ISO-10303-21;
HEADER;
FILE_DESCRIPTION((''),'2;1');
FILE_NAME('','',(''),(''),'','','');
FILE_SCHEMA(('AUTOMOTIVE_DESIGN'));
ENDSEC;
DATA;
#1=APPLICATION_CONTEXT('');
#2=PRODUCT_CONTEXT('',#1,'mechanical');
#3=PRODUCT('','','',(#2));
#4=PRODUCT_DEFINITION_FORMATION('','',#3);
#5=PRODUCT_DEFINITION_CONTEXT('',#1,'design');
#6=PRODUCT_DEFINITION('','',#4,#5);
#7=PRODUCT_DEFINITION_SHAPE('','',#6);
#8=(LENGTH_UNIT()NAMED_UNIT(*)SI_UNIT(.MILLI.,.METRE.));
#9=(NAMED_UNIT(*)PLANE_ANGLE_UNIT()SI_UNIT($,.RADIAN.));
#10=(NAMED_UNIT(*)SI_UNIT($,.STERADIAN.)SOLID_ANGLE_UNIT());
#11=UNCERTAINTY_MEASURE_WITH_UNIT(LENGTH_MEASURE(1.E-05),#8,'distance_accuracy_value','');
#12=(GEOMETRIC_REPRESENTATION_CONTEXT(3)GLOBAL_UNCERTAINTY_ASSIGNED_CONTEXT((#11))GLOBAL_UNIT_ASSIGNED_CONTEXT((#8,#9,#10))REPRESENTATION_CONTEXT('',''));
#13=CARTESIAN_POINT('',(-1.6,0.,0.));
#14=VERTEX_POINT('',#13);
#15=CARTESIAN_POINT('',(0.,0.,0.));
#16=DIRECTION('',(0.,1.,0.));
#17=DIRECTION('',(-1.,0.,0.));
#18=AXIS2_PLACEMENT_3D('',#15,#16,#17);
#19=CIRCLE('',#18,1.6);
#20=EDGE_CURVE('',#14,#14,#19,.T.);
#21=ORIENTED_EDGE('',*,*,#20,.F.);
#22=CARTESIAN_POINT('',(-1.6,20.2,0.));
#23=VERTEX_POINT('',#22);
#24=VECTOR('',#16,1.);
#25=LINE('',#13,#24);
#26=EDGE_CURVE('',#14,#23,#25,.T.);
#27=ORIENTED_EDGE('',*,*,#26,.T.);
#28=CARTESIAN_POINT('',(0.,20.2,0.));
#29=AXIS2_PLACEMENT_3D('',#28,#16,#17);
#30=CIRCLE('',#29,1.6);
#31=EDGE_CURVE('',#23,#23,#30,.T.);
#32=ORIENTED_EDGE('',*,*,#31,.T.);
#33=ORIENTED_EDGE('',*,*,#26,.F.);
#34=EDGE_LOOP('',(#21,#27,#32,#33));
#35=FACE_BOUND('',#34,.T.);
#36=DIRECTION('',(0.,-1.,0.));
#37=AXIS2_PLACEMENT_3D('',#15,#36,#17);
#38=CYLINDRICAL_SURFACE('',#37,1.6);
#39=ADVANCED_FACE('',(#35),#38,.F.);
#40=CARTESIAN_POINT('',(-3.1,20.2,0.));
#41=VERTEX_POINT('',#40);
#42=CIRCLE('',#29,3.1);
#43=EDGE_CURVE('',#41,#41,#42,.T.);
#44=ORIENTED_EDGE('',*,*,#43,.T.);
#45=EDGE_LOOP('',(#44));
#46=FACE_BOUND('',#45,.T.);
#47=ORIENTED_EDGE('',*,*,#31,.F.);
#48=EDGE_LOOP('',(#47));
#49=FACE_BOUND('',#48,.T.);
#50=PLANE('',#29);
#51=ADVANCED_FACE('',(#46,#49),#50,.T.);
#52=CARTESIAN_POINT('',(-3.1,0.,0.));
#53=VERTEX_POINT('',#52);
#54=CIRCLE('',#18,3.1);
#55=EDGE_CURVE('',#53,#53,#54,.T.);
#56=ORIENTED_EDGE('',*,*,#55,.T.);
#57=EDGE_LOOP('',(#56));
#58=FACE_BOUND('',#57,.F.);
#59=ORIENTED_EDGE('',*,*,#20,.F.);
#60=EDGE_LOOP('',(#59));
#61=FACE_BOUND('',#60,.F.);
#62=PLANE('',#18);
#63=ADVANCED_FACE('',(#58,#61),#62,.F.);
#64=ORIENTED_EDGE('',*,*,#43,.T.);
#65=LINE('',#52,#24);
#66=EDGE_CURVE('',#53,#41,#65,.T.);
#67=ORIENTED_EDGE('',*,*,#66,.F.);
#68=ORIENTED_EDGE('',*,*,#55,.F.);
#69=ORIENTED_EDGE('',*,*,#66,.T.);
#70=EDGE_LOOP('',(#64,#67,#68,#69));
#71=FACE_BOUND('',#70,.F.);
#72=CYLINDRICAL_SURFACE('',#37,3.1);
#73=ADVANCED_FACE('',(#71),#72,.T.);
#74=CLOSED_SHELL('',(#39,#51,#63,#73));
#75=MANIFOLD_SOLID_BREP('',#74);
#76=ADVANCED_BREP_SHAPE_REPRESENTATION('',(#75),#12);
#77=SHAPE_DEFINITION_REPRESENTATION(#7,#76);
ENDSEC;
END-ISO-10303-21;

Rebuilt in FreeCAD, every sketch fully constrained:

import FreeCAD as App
import Part
import Sketcher

doc = App.newDocument("Part")
params = doc.addObject("Spreadsheet::Sheet", "Params")
for row, (alias, value) in enumerate([
    ("sketch1_diameter", "6.2 mm"),
    ("sketch1_diameter2", "3.2 mm"),
    ("pad1_length", "20.2 mm"),
], start=1):
    params.set(f"A{row}", alias)
    params.set(f"B{row}", "=" + value)
    params.setAlias(f"B{row}", alias)

body = doc.addObject("PartDesign::Body", "Body")

sketch1 = doc.addObject("Sketcher::SketchObject", "Sketch")
body.addObject(sketch1)
sketch1.AttachmentSupport = (doc.XZ_Plane, [""])
sketch1.MapMode = "FlatFace"
sketch1.addGeometry([
    Part.Circle(App.Vector(0, 0, 0), App.Vector(0, 0, 1), 3.1),
    Part.Circle(App.Vector(0, 0, 0), App.Vector(0, 0, 1), 1.6),
], False)
sketch1.addConstraint([
    Sketcher.Constraint("Coincident", 0, 3, -1, 1),
    Sketcher.Constraint("Coincident", 1, 3, -1, 1),
    Sketcher.Constraint("Diameter", 0, 6.2),
    Sketcher.Constraint("Diameter", 1, 3.2),
])
sketch1.setExpression("Constraints[2]", "Params.sketch1_diameter")
sketch1.setExpression("Constraints[3]", "Params.sketch1_diameter2")
pad1 = doc.addObject("PartDesign::Pad", "Pad")
body.addObject(pad1)
pad1.Profile = sketch1
pad1.setExpression("Length", "Params.pad1_length")
pad1.Reversed = True

doc.recompute()
